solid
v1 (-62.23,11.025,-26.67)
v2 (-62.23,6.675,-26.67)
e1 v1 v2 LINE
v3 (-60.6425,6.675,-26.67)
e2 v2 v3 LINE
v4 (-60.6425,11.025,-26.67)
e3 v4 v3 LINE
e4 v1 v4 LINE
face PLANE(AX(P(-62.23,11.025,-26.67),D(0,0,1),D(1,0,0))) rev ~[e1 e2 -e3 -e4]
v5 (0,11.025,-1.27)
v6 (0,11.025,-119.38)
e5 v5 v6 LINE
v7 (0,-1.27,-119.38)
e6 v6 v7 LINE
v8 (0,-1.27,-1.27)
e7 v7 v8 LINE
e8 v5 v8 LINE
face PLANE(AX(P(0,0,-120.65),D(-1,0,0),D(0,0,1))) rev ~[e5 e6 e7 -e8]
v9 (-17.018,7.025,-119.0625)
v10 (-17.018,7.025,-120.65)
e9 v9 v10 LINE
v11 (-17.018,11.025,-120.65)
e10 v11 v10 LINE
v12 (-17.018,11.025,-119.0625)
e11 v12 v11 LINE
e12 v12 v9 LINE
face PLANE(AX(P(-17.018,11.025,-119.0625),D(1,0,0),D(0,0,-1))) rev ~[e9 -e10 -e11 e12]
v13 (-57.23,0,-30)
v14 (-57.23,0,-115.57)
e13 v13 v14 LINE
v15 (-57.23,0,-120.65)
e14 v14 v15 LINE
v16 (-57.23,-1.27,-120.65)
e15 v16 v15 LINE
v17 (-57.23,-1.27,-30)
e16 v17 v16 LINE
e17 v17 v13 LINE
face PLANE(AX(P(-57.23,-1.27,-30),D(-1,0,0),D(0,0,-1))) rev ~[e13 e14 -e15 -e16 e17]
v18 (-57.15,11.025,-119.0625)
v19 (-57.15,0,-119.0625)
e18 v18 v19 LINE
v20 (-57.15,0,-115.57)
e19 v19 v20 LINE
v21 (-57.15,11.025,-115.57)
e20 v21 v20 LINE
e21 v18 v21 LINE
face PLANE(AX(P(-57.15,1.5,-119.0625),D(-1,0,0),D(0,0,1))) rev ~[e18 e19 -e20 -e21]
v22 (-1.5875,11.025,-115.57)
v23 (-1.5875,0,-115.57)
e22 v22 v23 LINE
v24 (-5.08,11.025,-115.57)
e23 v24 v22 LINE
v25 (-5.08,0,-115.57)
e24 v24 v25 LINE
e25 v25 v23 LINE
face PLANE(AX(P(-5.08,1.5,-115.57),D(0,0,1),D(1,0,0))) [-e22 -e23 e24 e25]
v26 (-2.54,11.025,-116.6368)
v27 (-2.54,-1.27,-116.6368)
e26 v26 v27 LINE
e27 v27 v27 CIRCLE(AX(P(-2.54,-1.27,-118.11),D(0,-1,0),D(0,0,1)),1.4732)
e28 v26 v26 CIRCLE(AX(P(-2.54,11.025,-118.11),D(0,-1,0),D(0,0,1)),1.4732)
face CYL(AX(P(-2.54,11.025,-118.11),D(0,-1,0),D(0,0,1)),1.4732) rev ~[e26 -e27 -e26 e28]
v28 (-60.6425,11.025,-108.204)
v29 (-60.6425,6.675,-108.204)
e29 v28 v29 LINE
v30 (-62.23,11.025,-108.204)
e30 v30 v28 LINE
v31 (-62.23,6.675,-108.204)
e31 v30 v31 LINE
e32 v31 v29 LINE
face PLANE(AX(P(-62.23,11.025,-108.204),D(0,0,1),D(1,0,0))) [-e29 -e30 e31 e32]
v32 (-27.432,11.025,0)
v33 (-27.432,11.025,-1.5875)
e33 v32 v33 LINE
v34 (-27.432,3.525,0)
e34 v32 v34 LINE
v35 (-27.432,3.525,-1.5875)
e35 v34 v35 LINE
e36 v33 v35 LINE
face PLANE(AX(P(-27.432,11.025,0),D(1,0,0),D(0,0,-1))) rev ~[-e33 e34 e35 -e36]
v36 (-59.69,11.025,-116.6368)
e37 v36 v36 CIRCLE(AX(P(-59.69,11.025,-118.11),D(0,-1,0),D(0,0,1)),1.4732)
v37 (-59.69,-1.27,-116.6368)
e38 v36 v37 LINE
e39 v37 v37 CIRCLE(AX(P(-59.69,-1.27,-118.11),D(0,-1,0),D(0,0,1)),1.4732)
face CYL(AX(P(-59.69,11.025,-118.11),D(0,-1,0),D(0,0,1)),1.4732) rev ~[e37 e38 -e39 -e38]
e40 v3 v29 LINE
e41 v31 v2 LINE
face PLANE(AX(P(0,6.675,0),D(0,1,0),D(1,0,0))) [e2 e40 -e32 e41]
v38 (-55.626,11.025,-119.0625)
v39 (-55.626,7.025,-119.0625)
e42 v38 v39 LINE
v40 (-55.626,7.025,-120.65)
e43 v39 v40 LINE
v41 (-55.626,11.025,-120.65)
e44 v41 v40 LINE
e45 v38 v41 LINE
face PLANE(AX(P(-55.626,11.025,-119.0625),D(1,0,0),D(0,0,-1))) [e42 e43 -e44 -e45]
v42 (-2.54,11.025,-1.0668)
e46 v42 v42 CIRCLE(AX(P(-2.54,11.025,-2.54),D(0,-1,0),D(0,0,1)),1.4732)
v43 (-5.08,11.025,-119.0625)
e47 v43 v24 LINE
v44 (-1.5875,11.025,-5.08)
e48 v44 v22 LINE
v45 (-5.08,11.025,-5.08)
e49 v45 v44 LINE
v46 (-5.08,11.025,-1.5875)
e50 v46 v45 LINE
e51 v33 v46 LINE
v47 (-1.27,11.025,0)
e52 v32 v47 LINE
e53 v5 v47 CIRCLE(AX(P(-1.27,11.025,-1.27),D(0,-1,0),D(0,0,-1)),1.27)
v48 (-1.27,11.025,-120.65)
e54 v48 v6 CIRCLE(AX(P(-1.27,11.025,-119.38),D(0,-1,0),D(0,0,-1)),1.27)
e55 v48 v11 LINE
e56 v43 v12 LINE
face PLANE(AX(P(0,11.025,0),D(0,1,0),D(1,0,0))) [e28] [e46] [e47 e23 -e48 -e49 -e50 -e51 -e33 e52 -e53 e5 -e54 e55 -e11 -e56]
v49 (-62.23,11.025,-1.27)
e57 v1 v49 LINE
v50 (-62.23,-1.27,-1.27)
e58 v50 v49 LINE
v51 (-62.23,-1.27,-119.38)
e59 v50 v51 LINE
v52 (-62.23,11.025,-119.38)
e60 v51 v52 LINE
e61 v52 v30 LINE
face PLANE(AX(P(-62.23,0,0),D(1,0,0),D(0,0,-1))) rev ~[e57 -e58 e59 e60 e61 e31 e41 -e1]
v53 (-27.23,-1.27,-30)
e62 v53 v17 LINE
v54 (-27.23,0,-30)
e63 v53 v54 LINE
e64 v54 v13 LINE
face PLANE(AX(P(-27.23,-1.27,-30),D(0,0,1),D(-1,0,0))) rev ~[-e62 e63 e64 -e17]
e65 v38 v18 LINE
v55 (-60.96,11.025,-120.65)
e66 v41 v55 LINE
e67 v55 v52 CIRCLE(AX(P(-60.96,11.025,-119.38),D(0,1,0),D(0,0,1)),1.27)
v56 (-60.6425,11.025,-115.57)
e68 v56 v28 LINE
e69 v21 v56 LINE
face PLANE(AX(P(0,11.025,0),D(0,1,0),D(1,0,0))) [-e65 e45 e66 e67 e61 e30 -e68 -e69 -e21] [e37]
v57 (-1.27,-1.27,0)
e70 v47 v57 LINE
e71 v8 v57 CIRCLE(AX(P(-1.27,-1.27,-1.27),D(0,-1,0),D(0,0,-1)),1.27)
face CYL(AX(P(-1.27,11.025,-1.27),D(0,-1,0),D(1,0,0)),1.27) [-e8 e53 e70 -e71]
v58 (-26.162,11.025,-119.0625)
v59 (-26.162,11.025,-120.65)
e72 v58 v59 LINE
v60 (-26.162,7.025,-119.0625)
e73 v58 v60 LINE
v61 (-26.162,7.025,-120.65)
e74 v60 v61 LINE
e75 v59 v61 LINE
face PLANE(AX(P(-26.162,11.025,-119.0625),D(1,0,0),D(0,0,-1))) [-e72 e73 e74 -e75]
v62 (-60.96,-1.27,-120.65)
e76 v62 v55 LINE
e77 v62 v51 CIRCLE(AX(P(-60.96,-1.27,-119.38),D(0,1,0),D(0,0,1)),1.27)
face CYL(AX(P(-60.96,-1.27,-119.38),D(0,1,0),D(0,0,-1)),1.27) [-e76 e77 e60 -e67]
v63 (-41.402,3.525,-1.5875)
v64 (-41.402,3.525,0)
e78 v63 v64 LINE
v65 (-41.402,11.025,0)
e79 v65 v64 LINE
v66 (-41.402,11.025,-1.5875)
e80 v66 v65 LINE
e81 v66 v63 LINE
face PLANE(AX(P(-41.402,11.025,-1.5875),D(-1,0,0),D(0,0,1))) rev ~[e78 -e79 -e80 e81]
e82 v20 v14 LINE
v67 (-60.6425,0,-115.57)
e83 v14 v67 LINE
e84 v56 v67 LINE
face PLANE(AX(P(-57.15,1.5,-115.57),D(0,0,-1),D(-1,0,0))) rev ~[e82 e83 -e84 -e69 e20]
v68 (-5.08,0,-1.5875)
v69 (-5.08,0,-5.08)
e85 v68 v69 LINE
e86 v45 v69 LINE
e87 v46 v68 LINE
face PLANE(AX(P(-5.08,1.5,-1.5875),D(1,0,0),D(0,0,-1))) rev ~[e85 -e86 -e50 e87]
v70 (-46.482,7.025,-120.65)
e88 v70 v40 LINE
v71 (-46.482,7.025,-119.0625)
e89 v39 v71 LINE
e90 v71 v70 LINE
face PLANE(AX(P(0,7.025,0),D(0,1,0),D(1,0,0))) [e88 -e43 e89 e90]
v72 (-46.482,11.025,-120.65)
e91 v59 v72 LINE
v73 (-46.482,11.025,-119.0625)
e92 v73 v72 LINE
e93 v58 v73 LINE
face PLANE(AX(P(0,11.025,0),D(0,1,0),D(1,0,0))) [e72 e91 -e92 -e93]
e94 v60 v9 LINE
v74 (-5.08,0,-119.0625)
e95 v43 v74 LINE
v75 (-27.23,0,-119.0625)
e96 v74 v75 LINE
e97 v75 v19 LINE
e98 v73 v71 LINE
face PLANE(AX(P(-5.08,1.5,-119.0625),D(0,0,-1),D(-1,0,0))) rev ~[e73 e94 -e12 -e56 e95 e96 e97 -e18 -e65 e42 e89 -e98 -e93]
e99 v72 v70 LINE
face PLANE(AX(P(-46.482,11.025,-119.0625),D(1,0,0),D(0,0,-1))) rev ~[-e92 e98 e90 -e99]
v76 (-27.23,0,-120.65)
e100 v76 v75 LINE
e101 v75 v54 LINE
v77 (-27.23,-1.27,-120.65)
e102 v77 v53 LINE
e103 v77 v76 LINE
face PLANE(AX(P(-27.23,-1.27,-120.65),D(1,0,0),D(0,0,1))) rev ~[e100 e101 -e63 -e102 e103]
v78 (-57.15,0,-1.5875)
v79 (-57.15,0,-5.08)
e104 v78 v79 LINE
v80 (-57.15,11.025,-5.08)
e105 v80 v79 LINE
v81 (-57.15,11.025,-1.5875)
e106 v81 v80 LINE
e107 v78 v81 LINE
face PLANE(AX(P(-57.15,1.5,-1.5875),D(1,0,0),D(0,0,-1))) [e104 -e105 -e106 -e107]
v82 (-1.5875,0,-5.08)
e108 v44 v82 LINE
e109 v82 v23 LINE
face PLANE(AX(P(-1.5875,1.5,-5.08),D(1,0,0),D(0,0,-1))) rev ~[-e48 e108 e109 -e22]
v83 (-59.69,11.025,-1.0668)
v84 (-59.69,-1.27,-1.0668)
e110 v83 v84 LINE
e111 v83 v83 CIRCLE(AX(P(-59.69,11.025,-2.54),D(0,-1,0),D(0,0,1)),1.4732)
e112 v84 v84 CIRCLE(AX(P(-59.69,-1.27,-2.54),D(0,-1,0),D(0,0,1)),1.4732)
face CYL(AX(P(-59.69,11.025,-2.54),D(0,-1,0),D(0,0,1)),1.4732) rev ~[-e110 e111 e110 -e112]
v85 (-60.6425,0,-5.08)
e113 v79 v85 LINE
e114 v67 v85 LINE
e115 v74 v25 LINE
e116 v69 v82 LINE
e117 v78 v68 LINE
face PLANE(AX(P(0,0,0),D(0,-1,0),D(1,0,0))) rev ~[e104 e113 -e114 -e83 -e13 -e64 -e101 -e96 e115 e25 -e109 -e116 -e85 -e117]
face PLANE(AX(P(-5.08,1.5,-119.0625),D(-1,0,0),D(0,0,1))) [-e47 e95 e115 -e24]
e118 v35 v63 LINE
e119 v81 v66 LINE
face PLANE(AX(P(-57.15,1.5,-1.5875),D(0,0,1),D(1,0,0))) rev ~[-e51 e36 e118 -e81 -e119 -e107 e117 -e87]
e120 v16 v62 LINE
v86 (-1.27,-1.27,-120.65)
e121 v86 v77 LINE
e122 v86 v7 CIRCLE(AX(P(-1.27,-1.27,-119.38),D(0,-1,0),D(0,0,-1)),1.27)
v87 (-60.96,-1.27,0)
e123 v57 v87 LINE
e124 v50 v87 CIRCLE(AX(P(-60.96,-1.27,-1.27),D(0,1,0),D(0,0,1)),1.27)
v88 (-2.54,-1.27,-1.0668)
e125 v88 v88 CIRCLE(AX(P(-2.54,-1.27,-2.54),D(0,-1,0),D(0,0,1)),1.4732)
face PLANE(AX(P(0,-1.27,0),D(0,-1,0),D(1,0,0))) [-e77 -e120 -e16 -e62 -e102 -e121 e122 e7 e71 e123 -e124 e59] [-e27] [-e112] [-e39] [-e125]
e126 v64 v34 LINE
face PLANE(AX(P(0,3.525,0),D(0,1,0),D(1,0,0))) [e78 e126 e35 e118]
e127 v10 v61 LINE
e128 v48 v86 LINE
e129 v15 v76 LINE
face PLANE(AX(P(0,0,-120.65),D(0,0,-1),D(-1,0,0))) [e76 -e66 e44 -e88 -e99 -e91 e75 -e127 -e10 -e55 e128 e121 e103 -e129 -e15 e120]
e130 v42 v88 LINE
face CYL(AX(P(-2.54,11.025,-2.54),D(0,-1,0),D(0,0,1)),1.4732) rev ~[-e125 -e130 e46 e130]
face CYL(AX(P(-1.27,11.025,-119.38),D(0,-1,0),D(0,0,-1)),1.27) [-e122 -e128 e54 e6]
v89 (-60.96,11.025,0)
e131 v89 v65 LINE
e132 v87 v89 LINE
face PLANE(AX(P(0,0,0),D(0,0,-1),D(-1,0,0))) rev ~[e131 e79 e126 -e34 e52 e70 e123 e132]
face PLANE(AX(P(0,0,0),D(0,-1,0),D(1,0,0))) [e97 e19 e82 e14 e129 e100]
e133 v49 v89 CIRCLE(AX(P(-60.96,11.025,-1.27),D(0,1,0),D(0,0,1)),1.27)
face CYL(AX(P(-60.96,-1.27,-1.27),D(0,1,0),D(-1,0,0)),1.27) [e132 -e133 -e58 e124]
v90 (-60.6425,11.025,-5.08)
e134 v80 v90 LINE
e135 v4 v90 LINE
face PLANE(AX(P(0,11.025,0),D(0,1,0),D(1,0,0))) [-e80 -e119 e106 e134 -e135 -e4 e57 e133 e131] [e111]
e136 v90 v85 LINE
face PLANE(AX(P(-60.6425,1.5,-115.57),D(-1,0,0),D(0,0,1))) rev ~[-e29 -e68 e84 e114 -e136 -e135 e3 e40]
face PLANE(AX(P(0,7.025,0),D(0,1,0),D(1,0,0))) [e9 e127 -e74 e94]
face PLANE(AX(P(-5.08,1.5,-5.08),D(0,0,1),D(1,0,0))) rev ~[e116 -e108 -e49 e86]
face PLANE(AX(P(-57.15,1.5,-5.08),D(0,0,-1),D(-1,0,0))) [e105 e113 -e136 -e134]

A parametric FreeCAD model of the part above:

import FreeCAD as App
import Part
import Sketcher
Q = App.Units.Quantity


def edges_at(feature, points):
    """Names of the edges that pass closest to the given points."""
    edges = feature.Shape.Edges
    near = lambda p: min(range(len(edges)), key=lambda i: edges[i].distToShape(Part.Vertex(*p))[0])
    return sorted({f"Edge{near(p) + 1}" for p in points})

doc = App.newDocument("Part")
body = doc.addObject("PartDesign::Body", "Body")

sketch1 = doc.addObject("Sketcher::SketchObject", "Sketch")
body.addObject(sketch1)
sketch1.AttachmentSupport = (doc.XZ_Plane, [""])
sketch1.MapMode = "FlatFace"
sketch1.addGeometry(Part.LineSegment(App.Vector(-62.23, 0, 0), App.Vector(0, 0, 0)), False)
sketch1.addGeometry(Part.LineSegment(App.Vector(0, 0, 0), App.Vector(0, -120.65, 0)), False)
sketch1.addGeometry(Part.LineSegment(App.Vector(0, -120.65, 0), App.Vector(-62.23, -120.65, 0)), False)
sketch1.addGeometry(Part.LineSegment(App.Vector(-62.23, -120.65, 0), App.Vector(-62.23, 0, 0)), False)
sketch1.addConstraint(Sketcher.Constraint("Coincident", 0, 2, 1, 1))
sketch1.addConstraint(Sketcher.Constraint("Coincident", 1, 2, 2, 1))
sketch1.addConstraint(Sketcher.Constraint("Coincident", 2, 2, 3, 1))
sketch1.addConstraint(Sketcher.Constraint("Coincident", 3, 2, 0, 1))
sketch1.addConstraint(Sketcher.Constraint("Horizontal", 0))
sketch1.addConstraint(Sketcher.Constraint("Vertical", 1))
sketch1.addConstraint(Sketcher.Constraint("Horizontal", 2))
sketch1.addConstraint(Sketcher.Constraint("Vertical", 3))
sketch1.addConstraint(Sketcher.Constraint("Coincident", 0, 2, -1, 1))
sketch1.addConstraint(Sketcher.Constraint("DistanceX", 0, 1, 0, 2, Q("2.45 in")))
sketch1.addConstraint(Sketcher.Constraint("DistanceY", 1, 2, 1, 1, Q("4.75 in")))
pad1 = doc.addObject("PartDesign::Pad", "Pad")
body.addObject(pad1)
pad1.Profile = sketch1
pad1.Length = 1.5
pad1.Reversed = True

sketch2 = doc.addObject("Sketcher::SketchObject", "Sketch001")
body.addObject(sketch2)
sketch2.AttachmentSupport = (doc.XZ_Plane, [""])
sketch2.MapMode = "FlatFace"
sketch2.AttachmentOffset = App.Placement(App.Vector(0, 0, -1.5), App.Rotation())
sketch2.addGeometry(Part.LineSegment(App.Vector(-62.23, 0, 0), App.Vector(0, 0, 0)), False)
sketch2.addGeometry(Part.LineSegment(App.Vector(0, 0, 0), App.Vector(0, -120.65, 0)), False)
sketch2.addGeometry(Part.LineSegment(App.Vector(0, -120.65, 0), App.Vector(-62.23, -120.65, 0)), False)
sketch2.addGeometry(Part.LineSegment(App.Vector(-62.23, -120.65, 0), App.Vector(-62.23, 0, 0)), False)
sketch2.addGeometry(Part.LineSegment(App.Vector(-57.15, -5.08, 0), App.Vector(-60.6425, -5.08, 0)), False)
sketch2.addGeometry(Part.LineSegment(App.Vector(-60.6425, -5.08, 0), App.Vector(-60.6425, -115.57, 0)), False)
sketch2.addGeometry(Part.LineSegment(App.Vector(-60.6425, -115.57, 0), App.Vector(-57.15, -115.57, 0)), False)
sketch2.addGeometry(Part.LineSegment(App.Vector(-57.15, -115.57, 0), App.Vector(-57.15, -119.0625, 0)), False)
sketch2.addGeometry(Part.LineSegment(App.Vector(-57.15, -119.0625, 0), App.Vector(-5.08, -119.0625, 0)), False)
sketch2.addGeometry(Part.LineSegment(App.Vector(-5.08, -119.0625, 0), App.Vector(-5.08, -115.57, 0)), False)
sketch2.addGeometry(Part.LineSegment(App.Vector(-5.08, -115.57, 0), App.Vector(-1.5875, -115.57, 0)), False)
sketch2.addGeometry(Part.LineSegment(App.Vector(-1.5875, -115.57, 0), App.Vector(-1.5875, -5.08, 0)), False)
sketch2.addGeometry(Part.LineSegment(App.Vector(-1.5875, -5.08, 0), App.Vector(-5.08, -5.08, 0)), False)
sketch2.addGeometry(Part.LineSegment(App.Vector(-5.08, -5.08, 0), App.Vector(-5.08, -1.5875, 0)), False)
sketch2.addGeometry(Part.LineSegment(App.Vector(-5.08, -1.5875, 0), App.Vector(-57.15, -1.5875, 0)), False)
sketch2.addGeometry(Part.LineSegment(App.Vector(-57.15, -1.5875, 0), App.Vector(-57.15, -5.08, 0)), False)
sketch2.addConstraint(Sketcher.Constraint("Coincident", 0, 2, 1, 1))
sketch2.addConstraint(Sketcher.Constraint("Coincident", 1, 2, 2, 1))
sketch2.addConstraint(Sketcher.Constraint("Coincident", 2, 2, 3, 1))
sketch2.addConstraint(Sketcher.Constraint("Coincident", 3, 2, 0, 1))
sketch2.addConstraint(Sketcher.Constraint("Coincident", 4, 2, 5, 1))
sketch2.addConstraint(Sketcher.Constraint("Coincident", 5, 2, 6, 1))
sketch2.addConstraint(Sketcher.Constraint("Coincident", 6, 2, 7, 1))
sketch2.addConstraint(Sketcher.Constraint("Coincident", 7, 2, 8, 1))
sketch2.addConstraint(Sketcher.Constraint("Coincident", 8, 2, 9, 1))
sketch2.addConstraint(Sketcher.Constraint("Coincident", 9, 2, 10, 1))
sketch2.addConstraint(Sketcher.Constraint("Coincident", 10, 2, 11, 1))
sketch2.addConstraint(Sketcher.Constraint("Coincident", 11, 2, 12, 1))
sketch2.addConstraint(Sketcher.Constraint("Coincident", 12, 2, 13, 1))
sketch2.addConstraint(Sketcher.Constraint("Coincident", 13, 2, 14, 1))
sketch2.addConstraint(Sketcher.Constraint("Coincident", 14, 2, 15, 1))
sketch2.addConstraint(Sketcher.Constraint("Coincident", 15, 2, 4, 1))
sketch2.addConstraint(Sketcher.Constraint("Horizontal", 0))
sketch2.addConstraint(Sketcher.Constraint("Vertical", 1))
sketch2.addConstraint(Sketcher.Constraint("Horizontal", 2))
sketch2.addConstraint(Sketcher.Constraint("Vertical", 3))
sketch2.addConstraint(Sketcher.Constraint("Horizontal", 4))
sketch2.addConstraint(Sketcher.Constraint("Vertical", 5))
sketch2.addConstraint(Sketcher.Constraint("Horizontal", 6))
sketch2.addConstraint(Sketcher.Constraint("Vertical", 7))
sketch2.addConstraint(Sketcher.Constraint("Horizontal", 8))
sketch2.addConstraint(Sketcher.Constraint("Vertical", 9))
sketch2.addConstraint(Sketcher.Constraint("Horizontal", 10))
sketch2.addConstraint(Sketcher.Constraint("Vertical", 11))
sketch2.addConstraint(Sketcher.Constraint("Horizontal", 12))
sketch2.addConstraint(Sketcher.Constraint("Vertical", 13))
sketch2.addConstraint(Sketcher.Constraint("Horizontal", 14))
sketch2.addConstraint(Sketcher.Constraint("Vertical", 15))
sketch2.addConstraint(Sketcher.Constraint("Coincident", 0, 2, -1, 1))
sketch2.addConstraint(Sketcher.Constraint("Horizontal", 6, 2, 9, 2))
sketch2.addConstraint(Sketcher.Constraint("Horizontal", 4, 2, 11, 2))
sketch2.addConstraint(Sketcher.Constraint("Vertical", 9, 2, 12, 2))
sketch2.addConstraint(Sketcher.Constraint("Vertical", 7, 2, 14, 2))
sketch2.addConstraint(Sketcher.Constraint("Equal", 6, 10))
sketch2.addConstraint(Sketcher.Constraint("Equal", 12, 7))
sketch2.addConstraint(Sketcher.Constraint("Equal", 9, 13))
sketch2.addConstraint(Sketcher.Constraint("DistanceY", 4, 2, -1, 1, Q("0.2 in")))
sketch2.addConstraint(Sketcher.Constraint("DistanceX", 8, 2, -1, 1, Q("0.2 in")))
sketch2.addConstraint(Sketcher.Constraint("DistanceY", 2, 2, 5, 2, Q("0.2 in")))
sketch2.addConstraint(Sketcher.Constraint("DistanceX", 2, 2, 6, 2, Q("0.2 in")))
sketch2.addConstraint(Sketcher.Constraint("DistanceX", 10, 2, -1, 1, Q("0.0625 in")))
sketch2.addConstraint(Sketcher.Constraint("DistanceX", 0, 1, 0, 2, Q("2.45 in")))
sketch2.addConstraint(Sketcher.Constraint("DistanceY", 1, 2, 1, 1, Q("4.75 in")))
pad2 = doc.addObject("PartDesign::Pad", "Pad001")
body.addObject(pad2)
pad2.Profile = sketch2
pad2.Length = Q("0.375 in")
pad2.Reversed = True

sketch3 = doc.addObject("Sketcher::SketchObject", "Sketch002")
body.addObject(sketch3)
sketch3.AttachmentSupport = (doc.XZ_Plane, [""])
sketch3.MapMode = "FlatFace"
sketch3.AttachmentOffset = App.Placement(App.Vector(0, 0, -11.025), App.Rotation())
sketch3.addGeometry(Part.LineSegment(App.Vector(-41.402, -1.5875, 0), App.Vector(-41.402, 0, 0)), False)
sketch3.addGeometry(Part.LineSegment(App.Vector(-41.402, 0, 0), App.Vector(-27.432, 0, 0)), False)
sketch3.addGeometry(Part.LineSegment(App.Vector(-27.432, 0, 0), App.Vector(-27.432, -1.5875, 0)), False)
sketch3.addGeometry(Part.LineSegment(App.Vector(-27.432, -1.5875, 0), App.Vector(-41.402, -1.5875, 0)), False)
sketch3.addConstraint(Sketcher.Constraint("Coincident", 0, 2, 1, 1))
sketch3.addConstraint(Sketcher.Constraint("Coincident", 1, 2, 2, 1))
sketch3.addConstraint(Sketcher.Constraint("Coincident", 2, 2, 3, 1))
sketch3.addConstraint(Sketcher.Constraint("Coincident", 3, 2, 0, 1))
sketch3.addConstraint(Sketcher.Constraint("Vertical", 0))
sketch3.addConstraint(Sketcher.Constraint("Horizontal", 1))
sketch3.addConstraint(Sketcher.Constraint("Vertical", 2))
sketch3.addConstraint(Sketcher.Constraint("Horizontal", 3))
sketch3.addConstraint(Sketcher.Constraint("PointOnObject", 0, 2, -1))
sketch3.addConstraint(Sketcher.Constraint("DistanceX", 1, 2, -1, 1, Q("1.08 in")))
sketch3.addConstraint(Sketcher.Constraint("DistanceX", 1, 1, 1, 2, Q("0.55 in")))
sketch3.addConstraint(Sketcher.Constraint("DistanceY", 0, 1, 0, 2, Q("0.0625 in")))
pocket1 = doc.addObject("PartDesign::Pocket", "Pocket")
body.addObject(pocket1)
pocket1.Profile = sketch3
pocket1.Length = 7.5
pocket1.Reversed = True

sketch4 = doc.addObject("Sketcher::SketchObject", "Sketch003")
body.addObject(sketch4)
sketch4.AttachmentSupport = (doc.XZ_Plane, [""])
sketch4.MapMode = "FlatFace"
sketch4.AttachmentOffset = App.Placement(App.Vector(0, 0, -11.025), App.Rotation())
sketch4.addGeometry(Part.LineSegment(App.Vector(-62.23, -26.67, 0), App.Vector(-60.6425, -26.67, 0)), False)
sketch4.addGeometry(Part.LineSegment(App.Vector(-60.6425, -26.67, 0), App.Vector(-60.6425, -108.204, 0)), False)
sketch4.addGeometry(Part.LineSegment(App.Vector(-60.6425, -108.204, 0), App.Vector(-62.23, -108.204, 0)), False)
sketch4.addGeometry(Part.LineSegment(App.Vector(-62.23, -108.204, 0), App.Vector(-62.23, -26.67, 0)), False)
sketch4.addConstraint(Sketcher.Constraint("Coincident", 0, 2, 1, 1))
sketch4.addConstraint(Sketcher.Constraint("Coincident", 1, 2, 2, 1))
sketch4.addConstraint(Sketcher.Constraint("Coincident", 2, 2, 3, 1))
sketch4.addConstraint(Sketcher.Constraint("Coincident", 3, 2, 0, 1))
sketch4.addConstraint(Sketcher.Constraint("Horizontal", 0))
sketch4.addConstraint(Sketcher.Constraint("Vertical", 1))
sketch4.addConstraint(Sketcher.Constraint("Horizontal", 2))
sketch4.addConstraint(Sketcher.Constraint("Vertical", 3))
sketch4.addConstraint(Sketcher.Constraint("DistanceY", 0, 2, -1, 1, Q("1.05 in")))
sketch4.addConstraint(Sketcher.Constraint("DistanceY", 1, 2, -1, 1, Q("4.26 in")))
sketch4.addConstraint(Sketcher.Constraint("DistanceX", 0, 1, 0, 2, Q("0.0625 in")))
sketch4.addConstraint(Sketcher.Constraint("DistanceX", 2, 2, -1, 1, Q("2.45 in")))
pocket2 = doc.addObject("PartDesign::Pocket", "Pocket001")
body.addObject(pocket2)
pocket2.Profile = sketch4
pocket2.Length = 4.35
pocket2.Reversed = True

sketch5 = doc.addObject("Sketcher::SketchObject", "Sketch004")
body.addObject(sketch5)
sketch5.AttachmentSupport = (doc.XZ_Plane, [""])
sketch5.MapMode = "FlatFace"
sketch5.AttachmentOffset = App.Placement(App.Vector(0, 0, -1.5), App.Rotation())
sketch5.addGeometry(Part.LineSegment(App.Vector(-57.15, -5.08, 0), App.Vector(-57.15, -1.5875, 0)), False)
sketch5.addGeometry(Part.LineSegment(App.Vector(-57.15, -1.5875, 0), App.Vector(-5.08, -1.5875, 0)), False)
sketch5.addGeometry(Part.LineSegment(App.Vector(-5.08, -1.5875, 0), App.Vector(-5.08, -5.08, 0)), False)
sketch5.addGeometry(Part.LineSegment(App.Vector(-5.08, -5.08, 0), App.Vector(-1.5875, -5.08, 0)), False)
sketch5.addGeometry(Part.LineSegment(App.Vector(-1.5875, -5.08, 0), App.Vector(-1.5875, -115.57, 0)), False)
sketch5.addGeometry(Part.LineSegment(App.Vector(-1.5875, -115.57, 0), App.Vector(-5.08, -115.57, 0)), False)
sketch5.addGeometry(Part.LineSegment(App.Vector(-5.08, -115.57, 0), App.Vector(-5.08, -119.0625, 0)), False)
sketch5.addGeometry(Part.LineSegment(App.Vector(-5.08, -119.0625, 0), App.Vector(-57.15, -119.0625, 0)), False)
sketch5.addGeometry(Part.LineSegment(App.Vector(-57.15, -119.0625, 0), App.Vector(-57.15, -115.57, 0)), False)
sketch5.addGeometry(Part.LineSegment(App.Vector(-57.15, -115.57, 0), App.Vector(-60.6425, -115.57, 0)), False)
sketch5.addGeometry(Part.LineSegment(App.Vector(-60.6425, -115.57, 0), App.Vector(-60.6425, -5.08, 0)), False)
sketch5.addGeometry(Part.LineSegment(App.Vector(-60.6425, -5.08, 0), App.Vector(-57.15, -5.08, 0)), False)
sketch5.addConstraint(Sketcher.Constraint("Coincident", 0, 2, 1, 1))
sketch5.addConstraint(Sketcher.Constraint("Coincident", 1, 2, 2, 1))
sketch5.addConstraint(Sketcher.Constraint("Coincident", 2, 2, 3, 1))
sketch5.addConstraint(Sketcher.Constraint("Coincident", 3, 2, 4, 1))
sketch5.addConstraint(Sketcher.Constraint("Coincident", 4, 2, 5, 1))
sketch5.addConstraint(Sketcher.Constraint("Coincident", 5, 2, 6, 1))
sketch5.addConstraint(Sketcher.Constraint("Coincident", 6, 2, 7, 1))
sketch5.addConstraint(Sketcher.Constraint("Coincident", 7, 2, 8, 1))
sketch5.addConstraint(Sketcher.Constraint("Coincident", 8, 2, 9, 1))
sketch5.addConstraint(Sketcher.Constraint("Coincident", 9, 2, 10, 1))
sketch5.addConstraint(Sketcher.Constraint("Coincident", 10, 2, 11, 1))
sketch5.addConstraint(Sketcher.Constraint("Coincident", 11, 2, 0, 1))
sketch5.addConstraint(Sketcher.Constraint("Vertical", 0))
sketch5.addConstraint(Sketcher.Constraint("Horizontal", 1))
sketch5.addConstraint(Sketcher.Constraint("Vertical", 2))
sketch5.addConstraint(Sketcher.Constraint("Horizontal", 3))
sketch5.addConstraint(Sketcher.Constraint("Vertical", 4))
sketch5.addConstraint(Sketcher.Constraint("Horizontal", 5))
sketch5.addConstraint(Sketcher.Constraint("Vertical", 6))
sketch5.addConstraint(Sketcher.Constraint("Horizontal", 7))
sketch5.addConstraint(Sketcher.Constraint("Vertical", 8))
sketch5.addConstraint(Sketcher.Constraint("Horizontal", 9))
sketch5.addConstraint(Sketcher.Constraint("Vertical", 10))
sketch5.addConstraint(Sketcher.Constraint("Horizontal", 11))
sketch5.addConstraint(Sketcher.Constraint("Horizontal", 5, 2, 8, 2))
sketch5.addConstraint(Sketcher.Constraint("Horizontal", 3, 2, 10, 2))
sketch5.addConstraint(Sketcher.Constraint("Vertical", 2, 2, 5, 2))
sketch5.addConstraint(Sketcher.Constraint("Vertical", 0, 2, 7, 2))
sketch5.addConstraint(Sketcher.Constraint("Equal", 5, 9))
sketch5.addConstraint(Sketcher.Constraint("Equal", 11, 0))
sketch5.addConstraint(Sketcher.Constraint("Equal", 2, 6))
sketch5.addConstraint(Sketcher.Constraint("DistanceX", 1, 2, -1, 1, Q("0.2 in")))
sketch5.addConstraint(Sketcher.Constraint("DistanceY", 2, 2, -1, 1, Q("0.2 in")))
sketch5.addConstraint(Sketcher.Constraint("DistanceY", 0, 2, -1, 1, Q("0.0625 in")))
sketch5.addConstraint(Sketcher.Constraint("DistanceX", 1, 1, 1, 2, Q("2.05 in")))
sketch5.addConstraint(Sketcher.Constraint("DistanceY", 4, 2, 4, 1, Q("4.35 in")))
pocket3 = doc.addObject("PartDesign::Pocket", "Pocket002")
body.addObject(pocket3)
pocket3.Profile = sketch5
pocket3.Type = "ThroughAll"
pocket3.Reversed = True

sketch6 = doc.addObject("Sketcher::SketchObject", "Sketch005")
body.addObject(sketch6)
sketch6.AttachmentSupport = (doc.XZ_Plane, [""])
sketch6.MapMode = "FlatFace"
sketch6.AttachmentOffset = App.Placement(App.Vector(0, 0, -11.025), App.Rotation())
sketch6.addGeometry(Part.LineSegment(App.Vector(-55.626, -120.65, 0), App.Vector(-55.626, -119.0625, 0)), False)
sketch6.addGeometry(Part.LineSegment(App.Vector(-55.626, -119.0625, 0), App.Vector(-46.482, -119.0625, 0)), False)
sketch6.addGeometry(Part.LineSegment(App.Vector(-46.482, -119.0625, 0), App.Vector(-46.482, -120.65, 0)), False)
sketch6.addGeometry(Part.LineSegment(App.Vector(-46.482, -120.65, 0), App.Vector(-55.626, -120.65, 0)), False)
sketch6.addGeometry(Part.LineSegment(App.Vector(-26.162, -120.65, 0), App.Vector(-26.162, -119.0625, 0)), False)
sketch6.addGeometry(Part.LineSegment(App.Vector(-26.162, -119.0625, 0), App.Vector(-17.018, -119.0625, 0)), False)
sketch6.addGeometry(Part.LineSegment(App.Vector(-17.018, -119.0625, 0), App.Vector(-17.018, -120.65, 0)), False)
sketch6.addGeometry(Part.LineSegment(App.Vector(-17.018, -120.65, 0), App.Vector(-26.162, -120.65, 0)), False)
sketch6.addConstraint(Sketcher.Constraint("Coincident", 0, 2, 1, 1))
sketch6.addConstraint(Sketcher.Constraint("Coincident", 1, 2, 2, 1))
sketch6.addConstraint(Sketcher.Constraint("Coincident", 2, 2, 3, 1))
sketch6.addConstraint(Sketcher.Constraint("Coincident", 3, 2, 0, 1))
sketch6.addConstraint(Sketcher.Constraint("Coincident", 4, 2, 5, 1))
sketch6.addConstraint(Sketcher.Constraint("Coincident", 5, 2, 6, 1))
sketch6.addConstraint(Sketcher.Constraint("Coincident", 6, 2, 7, 1))
sketch6.addConstraint(Sketcher.Constraint("Coincident", 7, 2, 4, 1))
sketch6.addConstraint(Sketcher.Constraint("Vertical", 0))
sketch6.addConstraint(Sketcher.Constraint("Horizontal", 1))
sketch6.addConstraint(Sketcher.Constraint("Vertical", 2))
sketch6.addConstraint(Sketcher.Constraint("Horizontal", 3))
sketch6.addConstraint(Sketcher.Constraint("Vertical", 4))
sketch6.addConstraint(Sketcher.Constraint("Horizontal", 5))
sketch6.addConstraint(Sketcher.Constraint("Vertical", 6))
sketch6.addConstraint(Sketcher.Constraint("Horizontal", 7))
sketch6.addConstraint(Sketcher.Constraint("Horizontal", 1, 2, 4, 2))
sketch6.addConstraint(Sketcher.Constraint("Horizontal", 3, 2, 6, 2))
sketch6.addConstraint(Sketcher.Constraint("Equal", 3, 5))
sketch6.addConstraint(Sketcher.Constraint("DistanceX", 1, 1, 1, 2, Q("0.36 in")))
sketch6.addConstraint(Sketcher.Constraint("DistanceX", 1, 2, 4, 2, Q("0.8 in")))
sketch6.addConstraint(Sketcher.Constraint("DistanceY", 0, 1, 0, 2, Q("0.0625 in")))
sketch6.addConstraint(Sketcher.Constraint("DistanceX", 0, 2, -1, 1, Q("2.19 in")))
sketch6.addConstraint(Sketcher.Constraint("DistanceY", 2, 2, -1, 1, Q("4.75 in")))
pocket4 = doc.addObject("PartDesign::Pocket", "Pocket003")
body.addObject(pocket4)
pocket4.Profile = sketch6
pocket4.Length = 4
pocket4.Reversed = True

sketch7 = doc.addObject("Sketcher::SketchObject", "Sketch006")
body.addObject(sketch7)
sketch7.AttachmentSupport = (doc.XZ_Plane, [""])
sketch7.MapMode = "FlatFace"
sketch7.addGeometry(Part.LineSegment(App.Vector(-62.23, -120.65, 0), App.Vector(0, -120.65, 0)), False)
sketch7.addGeometry(Part.LineSegment(App.Vector(0, -120.65, 0), App.Vector(0, 0, 0)), False)
sketch7.addGeometry(Part.LineSegment(App.Vector(0, 0, 0), App.Vector(-62.23, 0, 0)), False)
sketch7.addGeometry(Part.LineSegment(App.Vector(-62.23, 0, 0), App.Vector(-62.23, -120.65, 0)), False)
sketch7.addConstraint(Sketcher.Constraint("Coincident", 0, 2, 1, 1))
sketch7.addConstraint(Sketcher.Constraint("Coincident", 1, 2, 2, 1))
sketch7.addConstraint(Sketcher.Constraint("Coincident", 2, 2, 3, 1))
sketch7.addConstraint(Sketcher.Constraint("Coincident", 3, 2, 0, 1))
sketch7.addConstraint(Sketcher.Constraint("Horizontal", 0))
sketch7.addConstraint(Sketcher.Constraint("Vertical", 1))
sketch7.addConstraint(Sketcher.Constraint("Horizontal", 2))
sketch7.addConstraint(Sketcher.Constraint("Vertical", 3))
sketch7.addConstraint(Sketcher.Constraint("Coincident", 1, 2, -1, 1))
sketch7.addConstraint(Sketcher.Constraint("DistanceX", 0, 1, 0, 2, Q("2.45 in")))
sketch7.addConstraint(Sketcher.Constraint("DistanceY", 1, 1, 1, 2, Q("4.75 in")))
pad3 = doc.addObject("PartDesign::Pad", "Pad002")
body.addObject(pad3)
pad3.Profile = sketch7
pad3.Length = Q("0.05 in")

sketch8 = doc.addObject("Sketcher::SketchObject", "Sketch007")
body.addObject(sketch8)
sketch8.AttachmentSupport = (doc.XZ_Plane, [""])
sketch8.MapMode = "FlatFace"
sketch8.AttachmentOffset = App.Placement(App.Vector(0, 0, 0.05 * 25.4), App.Rotation())
sketch8.addGeometry(Part.LineSegment(App.Vector(-57.23, -30, 0), App.Vector(-57.23, -120.65, 0)), False)
sketch8.addGeometry(Part.LineSegment(App.Vector(-57.23, -120.65, 0), App.Vector(-27.23, -120.65, 0)), False)
sketch8.addGeometry(Part.LineSegment(App.Vector(-27.23, -120.65, 0), App.Vector(-27.23, -30, 0)), False)
sketch8.addGeometry(Part.LineSegment(App.Vector(-27.23, -30, 0), App.Vector(-57.23, -30, 0)), False)
sketch8.addConstraint(Sketcher.Constraint("Coincident", 0, 2, 1, 1))
sketch8.addConstraint(Sketcher.Constraint("Coincident", 1, 2, 2, 1))
sketch8.addConstraint(Sketcher.Constraint("Coincident", 2, 2, 3, 1))
sketch8.addConstraint(Sketcher.Constraint("Coincident", 3, 2, 0, 1))
sketch8.addConstraint(Sketcher.Constraint("Vertical", 0))
sketch8.addConstraint(Sketcher.Constraint("Horizontal", 1))
sketch8.addConstraint(Sketcher.Constraint("Vertical", 2))
sketch8.addConstraint(Sketcher.Constraint("Horizontal", 3))
sketch8.addConstraint(Sketcher.Constraint("DistanceX", 1, 1, 1, 2, Q("1.1811 in")))
sketch8.addConstraint(Sketcher.Constraint("DistanceY", 2, 2, -1, 1, Q("1.1811 in")))
sketch8.addConstraint(Sketcher.Constraint("DistanceY", 0, 2, -1, 1, Q("4.75 in")))
sketch8.addConstraint(Sketcher.Constraint("DistanceX", 0, 2, -1, 1, Q("57.23 mm")))
pocket5 = doc.addObject("PartDesign::Pocket", "Pocket004")
body.addObject(pocket5)
pocket5.Profile = sketch8
pocket5.Length = Q("0.05 in")

sketch9 = doc.addObject("Sketcher::SketchObject", "Sketch008")
body.addObject(sketch9)
sketch9.AttachmentSupport = (doc.XZ_Plane, [""])
sketch9.MapMode = "FlatFace"
sketch9.AttachmentOffset = App.Placement(App.Vector(0, 0, -11.025), App.Rotation())
sketch9.addGeometry(Part.Circle(App.Vector(-2.54, -2.54, 0), App.Vector(0, 0, 1), 1.4732), False)
sketch9.addGeometry(Part.Circle(App.Vector(-2.54, -118.11, 0), App.Vector(0, 0, 1), 1.4732), False)
sketch9.addGeometry(Part.Circle(App.Vector(-59.69, -118.11, 0), App.Vector(0, 0, 1), 1.4732), False)
sketch9.addGeometry(Part.Circle(App.Vector(-59.69, -2.54, 0), App.Vector(0, 0, 1), 1.4732), False)
sketch9.addConstraint(Sketcher.Constraint("Equal", 0, 1))
sketch9.addConstraint(Sketcher.Constraint("Equal", 1, 2))
sketch9.addConstraint(Sketcher.Constraint("Equal", 2, 3))
sketch9.addConstraint(Sketcher.Constraint("Horizontal", 1, 3, 2, 3))
sketch9.addConstraint(Sketcher.Constraint("Horizontal", 0, 3, 3, 3))
sketch9.addConstraint(Sketcher.Constraint("Vertical", 0, 3, 1, 3))
sketch9.addConstraint(Sketcher.Constraint("Vertical", 2, 3, 3, 3))
sketch9.addConstraint(Sketcher.Constraint("Diameter", 0, Q("0.116 in")))
sketch9.addConstraint(Sketcher.Constraint("DistanceX", 0, 3, -1, 1, Q("0.1 in")))
sketch9.addConstraint(Sketcher.Constraint("DistanceY", 0, 3, -1, 1, Q("0.1 in")))
sketch9.addConstraint(Sketcher.Constraint("DistanceY", 1, 3, -1, 1, Q("4.65 in")))
sketch9.addConstraint(Sketcher.Constraint("DistanceX", 2, 3, -1, 1, Q("2.35 in")))
doc.recompute()
hole = doc.addObject("PartDesign::Hole", "Hole")
body.addObject(hole)
hole.Profile = sketch9
hole.ThreadType = "None"
hole.Diameter = Q("0.116 in")
hole.DepthType = "ThroughAll"
hole.Reversed = True
doc.recompute()

fillet = doc.addObject("PartDesign::Fillet", "Fillet")
body.addObject(fillet)
fillet.Base = (hole, edges_at(hole, [
    (0, 4.878, -120.65),
    (0, 4.878, 0),
    (-62.23, 4.878, -120.65),
    (-62.23, 4.878, 0),
]))
fillet.Radius = Q("0.05 in")

doc.recompute()
